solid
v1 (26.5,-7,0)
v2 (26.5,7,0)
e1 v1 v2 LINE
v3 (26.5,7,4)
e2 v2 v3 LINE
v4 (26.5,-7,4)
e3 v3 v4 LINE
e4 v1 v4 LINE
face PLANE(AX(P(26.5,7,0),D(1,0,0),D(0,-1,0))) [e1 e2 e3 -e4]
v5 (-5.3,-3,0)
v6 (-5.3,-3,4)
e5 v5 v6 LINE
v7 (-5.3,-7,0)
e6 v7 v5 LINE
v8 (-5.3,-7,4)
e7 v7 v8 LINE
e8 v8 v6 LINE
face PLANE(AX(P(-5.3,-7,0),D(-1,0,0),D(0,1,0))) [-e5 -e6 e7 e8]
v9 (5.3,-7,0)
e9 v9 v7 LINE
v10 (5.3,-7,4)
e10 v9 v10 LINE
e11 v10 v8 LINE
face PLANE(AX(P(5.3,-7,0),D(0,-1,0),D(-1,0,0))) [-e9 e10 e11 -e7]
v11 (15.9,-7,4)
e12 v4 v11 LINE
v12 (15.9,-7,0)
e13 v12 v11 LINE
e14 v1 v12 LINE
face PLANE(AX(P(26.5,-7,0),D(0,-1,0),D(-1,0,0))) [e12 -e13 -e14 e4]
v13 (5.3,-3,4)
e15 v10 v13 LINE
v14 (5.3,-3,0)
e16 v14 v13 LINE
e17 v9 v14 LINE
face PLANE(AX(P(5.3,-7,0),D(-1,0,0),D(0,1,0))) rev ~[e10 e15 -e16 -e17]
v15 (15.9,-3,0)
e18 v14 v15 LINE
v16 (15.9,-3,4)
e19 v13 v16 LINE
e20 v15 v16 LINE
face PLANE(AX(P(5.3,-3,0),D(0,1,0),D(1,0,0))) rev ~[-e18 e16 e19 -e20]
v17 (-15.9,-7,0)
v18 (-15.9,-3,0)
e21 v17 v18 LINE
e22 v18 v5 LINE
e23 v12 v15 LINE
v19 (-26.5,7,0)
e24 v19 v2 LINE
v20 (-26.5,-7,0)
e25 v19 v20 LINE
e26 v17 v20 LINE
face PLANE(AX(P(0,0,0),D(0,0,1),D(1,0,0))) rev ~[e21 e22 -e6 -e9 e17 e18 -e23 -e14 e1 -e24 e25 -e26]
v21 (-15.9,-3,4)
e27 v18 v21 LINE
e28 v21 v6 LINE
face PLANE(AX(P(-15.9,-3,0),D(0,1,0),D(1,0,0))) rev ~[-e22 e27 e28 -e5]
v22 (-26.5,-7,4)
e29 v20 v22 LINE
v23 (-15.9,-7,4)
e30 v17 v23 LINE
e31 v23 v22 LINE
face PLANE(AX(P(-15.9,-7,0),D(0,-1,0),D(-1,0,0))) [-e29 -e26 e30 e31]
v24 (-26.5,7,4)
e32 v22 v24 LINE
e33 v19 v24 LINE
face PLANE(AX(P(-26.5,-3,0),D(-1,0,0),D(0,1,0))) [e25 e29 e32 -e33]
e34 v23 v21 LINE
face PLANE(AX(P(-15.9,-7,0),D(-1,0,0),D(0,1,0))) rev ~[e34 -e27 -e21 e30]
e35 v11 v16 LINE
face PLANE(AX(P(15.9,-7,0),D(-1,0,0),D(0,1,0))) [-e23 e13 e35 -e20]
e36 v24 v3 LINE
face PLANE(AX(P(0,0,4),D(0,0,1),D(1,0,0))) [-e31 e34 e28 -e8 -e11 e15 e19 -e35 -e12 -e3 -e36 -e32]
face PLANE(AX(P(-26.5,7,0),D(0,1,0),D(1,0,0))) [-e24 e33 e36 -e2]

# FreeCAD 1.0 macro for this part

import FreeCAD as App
import Part
import Sketcher
Q = App.Units.Quantity


def add_polygon(sketch, points):
    """Adds a closed chain of lines whose ends are joined by coincident constraints."""
    first, n = sketch.GeometryCount, len(points)
    for a, b in zip(points, points[1:] + points[:1]):
        sketch.addGeometry(Part.LineSegment(App.Vector(*a, 0), App.Vector(*b, 0)), False)
    for i in range(n):
        sketch.addConstraint(Sketcher.Constraint("Coincident", first + i, 2, first + (i + 1) % n, 1))

doc = App.newDocument("Part")
body = doc.addObject("PartDesign::Body", "Body")

# Sketch on XY plane
sketch1 = doc.addObject("Sketcher::SketchObject", "Sketch")
body.addObject(sketch1)
sketch1.AttachmentSupport = (doc.XY_Plane, [""])
sketch1.MapMode = "FlatFace"
add_polygon(sketch1, [(26.5, 7), (-26.5, 7), (-26.5, -7), (-15.9, -7), (-15.9, -3), (-5.3, -3), (-5.3, -7), (5.3, -7), (5.3, -3), (15.9, -3), (15.9, -7), (26.5, -7)])  # lines 0-11
sketch1.addConstraint(Sketcher.Constraint("Horizontal", 0))
sketch1.addConstraint(Sketcher.Constraint("Vertical", 1))
sketch1.addConstraint(Sketcher.Constraint("Horizontal", 2))
sketch1.addConstraint(Sketcher.Constraint("Vertical", 3))
sketch1.addConstraint(Sketcher.Constraint("Horizontal", 4))
sketch1.addConstraint(Sketcher.Constraint("Vertical", 5))
sketch1.addConstraint(Sketcher.Constraint("Horizontal", 6))
sketch1.addConstraint(Sketcher.Constraint("Vertical", 7))
sketch1.addConstraint(Sketcher.Constraint("Horizontal", 8))
sketch1.addConstraint(Sketcher.Constraint("Vertical", 9))
sketch1.addConstraint(Sketcher.Constraint("Horizontal", 10))
sketch1.addConstraint(Sketcher.Constraint("Vertical", 11))
sketch1.addConstraint(Sketcher.Constraint("Symmetric", 0, 2, 10, 2, -1, 1))
sketch1.addConstraint(Sketcher.Constraint("Symmetric", 4, 2, 7, 2, -2))
sketch1.addConstraint(Sketcher.Constraint("Symmetric", 2, 2, 9, 2, -2))
sketch1.addConstraint(Sketcher.Constraint("Horizontal", 2, 2, 5, 2))
sketch1.addConstraint(Sketcher.Constraint("Equal", 2, 4))
sketch1.addConstraint(Sketcher.Constraint("Equal", 4, 6))
sketch1.addConstraint(Sketcher.Constraint("DistanceX", 0, 2, 0, 1, Q("53 mm")))
sketch1.addConstraint(Sketcher.Constraint("DistanceY", 1, 2, 1, 1, Q("14 mm")))
sketch1.addConstraint(Sketcher.Constraint("DistanceY", 3, 1, 3, 2, Q("4 mm")))
pad1 = doc.addObject("PartDesign::Pad", "Pad")
body.addObject(pad1)
pad1.Profile = sketch1
pad1.Length = 4

doc.recompute()
